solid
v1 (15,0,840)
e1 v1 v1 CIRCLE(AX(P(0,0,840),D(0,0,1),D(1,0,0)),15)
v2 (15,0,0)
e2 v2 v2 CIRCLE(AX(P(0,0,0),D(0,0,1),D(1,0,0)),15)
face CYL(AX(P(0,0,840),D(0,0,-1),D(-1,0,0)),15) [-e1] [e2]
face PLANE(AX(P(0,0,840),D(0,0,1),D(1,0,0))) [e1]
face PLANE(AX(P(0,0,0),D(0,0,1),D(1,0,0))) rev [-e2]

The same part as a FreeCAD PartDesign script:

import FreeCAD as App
import Part
import Sketcher

V = App.Vector
Q = App.Units.Quantity

doc = App.newDocument("Part")
body = doc.addObject("PartDesign::Body", "Body")

# Sketch on XY plane
sketch1 = doc.addObject("Sketcher::SketchObject", "Sketch")
body.addObject(sketch1)
sketch1.AttachmentSupport = (doc.XY_Plane, [""])
sketch1.MapMode = "FlatFace"
sketch1.addGeometry(Part.Circle(V(0, 0, 0), V(0, 0, 1), 15), False)
sketch1.addConstraint([
    Sketcher.Constraint("Coincident", 0, 3, -1, 1),
    Sketcher.Constraint("Diameter", 0, Q("30 mm")),
])
pad1 = doc.addObject("PartDesign::Pad", "Pad")
body.addObject(pad1)
pad1.Profile = sketch1
pad1.Length = 840

doc.recompute()
